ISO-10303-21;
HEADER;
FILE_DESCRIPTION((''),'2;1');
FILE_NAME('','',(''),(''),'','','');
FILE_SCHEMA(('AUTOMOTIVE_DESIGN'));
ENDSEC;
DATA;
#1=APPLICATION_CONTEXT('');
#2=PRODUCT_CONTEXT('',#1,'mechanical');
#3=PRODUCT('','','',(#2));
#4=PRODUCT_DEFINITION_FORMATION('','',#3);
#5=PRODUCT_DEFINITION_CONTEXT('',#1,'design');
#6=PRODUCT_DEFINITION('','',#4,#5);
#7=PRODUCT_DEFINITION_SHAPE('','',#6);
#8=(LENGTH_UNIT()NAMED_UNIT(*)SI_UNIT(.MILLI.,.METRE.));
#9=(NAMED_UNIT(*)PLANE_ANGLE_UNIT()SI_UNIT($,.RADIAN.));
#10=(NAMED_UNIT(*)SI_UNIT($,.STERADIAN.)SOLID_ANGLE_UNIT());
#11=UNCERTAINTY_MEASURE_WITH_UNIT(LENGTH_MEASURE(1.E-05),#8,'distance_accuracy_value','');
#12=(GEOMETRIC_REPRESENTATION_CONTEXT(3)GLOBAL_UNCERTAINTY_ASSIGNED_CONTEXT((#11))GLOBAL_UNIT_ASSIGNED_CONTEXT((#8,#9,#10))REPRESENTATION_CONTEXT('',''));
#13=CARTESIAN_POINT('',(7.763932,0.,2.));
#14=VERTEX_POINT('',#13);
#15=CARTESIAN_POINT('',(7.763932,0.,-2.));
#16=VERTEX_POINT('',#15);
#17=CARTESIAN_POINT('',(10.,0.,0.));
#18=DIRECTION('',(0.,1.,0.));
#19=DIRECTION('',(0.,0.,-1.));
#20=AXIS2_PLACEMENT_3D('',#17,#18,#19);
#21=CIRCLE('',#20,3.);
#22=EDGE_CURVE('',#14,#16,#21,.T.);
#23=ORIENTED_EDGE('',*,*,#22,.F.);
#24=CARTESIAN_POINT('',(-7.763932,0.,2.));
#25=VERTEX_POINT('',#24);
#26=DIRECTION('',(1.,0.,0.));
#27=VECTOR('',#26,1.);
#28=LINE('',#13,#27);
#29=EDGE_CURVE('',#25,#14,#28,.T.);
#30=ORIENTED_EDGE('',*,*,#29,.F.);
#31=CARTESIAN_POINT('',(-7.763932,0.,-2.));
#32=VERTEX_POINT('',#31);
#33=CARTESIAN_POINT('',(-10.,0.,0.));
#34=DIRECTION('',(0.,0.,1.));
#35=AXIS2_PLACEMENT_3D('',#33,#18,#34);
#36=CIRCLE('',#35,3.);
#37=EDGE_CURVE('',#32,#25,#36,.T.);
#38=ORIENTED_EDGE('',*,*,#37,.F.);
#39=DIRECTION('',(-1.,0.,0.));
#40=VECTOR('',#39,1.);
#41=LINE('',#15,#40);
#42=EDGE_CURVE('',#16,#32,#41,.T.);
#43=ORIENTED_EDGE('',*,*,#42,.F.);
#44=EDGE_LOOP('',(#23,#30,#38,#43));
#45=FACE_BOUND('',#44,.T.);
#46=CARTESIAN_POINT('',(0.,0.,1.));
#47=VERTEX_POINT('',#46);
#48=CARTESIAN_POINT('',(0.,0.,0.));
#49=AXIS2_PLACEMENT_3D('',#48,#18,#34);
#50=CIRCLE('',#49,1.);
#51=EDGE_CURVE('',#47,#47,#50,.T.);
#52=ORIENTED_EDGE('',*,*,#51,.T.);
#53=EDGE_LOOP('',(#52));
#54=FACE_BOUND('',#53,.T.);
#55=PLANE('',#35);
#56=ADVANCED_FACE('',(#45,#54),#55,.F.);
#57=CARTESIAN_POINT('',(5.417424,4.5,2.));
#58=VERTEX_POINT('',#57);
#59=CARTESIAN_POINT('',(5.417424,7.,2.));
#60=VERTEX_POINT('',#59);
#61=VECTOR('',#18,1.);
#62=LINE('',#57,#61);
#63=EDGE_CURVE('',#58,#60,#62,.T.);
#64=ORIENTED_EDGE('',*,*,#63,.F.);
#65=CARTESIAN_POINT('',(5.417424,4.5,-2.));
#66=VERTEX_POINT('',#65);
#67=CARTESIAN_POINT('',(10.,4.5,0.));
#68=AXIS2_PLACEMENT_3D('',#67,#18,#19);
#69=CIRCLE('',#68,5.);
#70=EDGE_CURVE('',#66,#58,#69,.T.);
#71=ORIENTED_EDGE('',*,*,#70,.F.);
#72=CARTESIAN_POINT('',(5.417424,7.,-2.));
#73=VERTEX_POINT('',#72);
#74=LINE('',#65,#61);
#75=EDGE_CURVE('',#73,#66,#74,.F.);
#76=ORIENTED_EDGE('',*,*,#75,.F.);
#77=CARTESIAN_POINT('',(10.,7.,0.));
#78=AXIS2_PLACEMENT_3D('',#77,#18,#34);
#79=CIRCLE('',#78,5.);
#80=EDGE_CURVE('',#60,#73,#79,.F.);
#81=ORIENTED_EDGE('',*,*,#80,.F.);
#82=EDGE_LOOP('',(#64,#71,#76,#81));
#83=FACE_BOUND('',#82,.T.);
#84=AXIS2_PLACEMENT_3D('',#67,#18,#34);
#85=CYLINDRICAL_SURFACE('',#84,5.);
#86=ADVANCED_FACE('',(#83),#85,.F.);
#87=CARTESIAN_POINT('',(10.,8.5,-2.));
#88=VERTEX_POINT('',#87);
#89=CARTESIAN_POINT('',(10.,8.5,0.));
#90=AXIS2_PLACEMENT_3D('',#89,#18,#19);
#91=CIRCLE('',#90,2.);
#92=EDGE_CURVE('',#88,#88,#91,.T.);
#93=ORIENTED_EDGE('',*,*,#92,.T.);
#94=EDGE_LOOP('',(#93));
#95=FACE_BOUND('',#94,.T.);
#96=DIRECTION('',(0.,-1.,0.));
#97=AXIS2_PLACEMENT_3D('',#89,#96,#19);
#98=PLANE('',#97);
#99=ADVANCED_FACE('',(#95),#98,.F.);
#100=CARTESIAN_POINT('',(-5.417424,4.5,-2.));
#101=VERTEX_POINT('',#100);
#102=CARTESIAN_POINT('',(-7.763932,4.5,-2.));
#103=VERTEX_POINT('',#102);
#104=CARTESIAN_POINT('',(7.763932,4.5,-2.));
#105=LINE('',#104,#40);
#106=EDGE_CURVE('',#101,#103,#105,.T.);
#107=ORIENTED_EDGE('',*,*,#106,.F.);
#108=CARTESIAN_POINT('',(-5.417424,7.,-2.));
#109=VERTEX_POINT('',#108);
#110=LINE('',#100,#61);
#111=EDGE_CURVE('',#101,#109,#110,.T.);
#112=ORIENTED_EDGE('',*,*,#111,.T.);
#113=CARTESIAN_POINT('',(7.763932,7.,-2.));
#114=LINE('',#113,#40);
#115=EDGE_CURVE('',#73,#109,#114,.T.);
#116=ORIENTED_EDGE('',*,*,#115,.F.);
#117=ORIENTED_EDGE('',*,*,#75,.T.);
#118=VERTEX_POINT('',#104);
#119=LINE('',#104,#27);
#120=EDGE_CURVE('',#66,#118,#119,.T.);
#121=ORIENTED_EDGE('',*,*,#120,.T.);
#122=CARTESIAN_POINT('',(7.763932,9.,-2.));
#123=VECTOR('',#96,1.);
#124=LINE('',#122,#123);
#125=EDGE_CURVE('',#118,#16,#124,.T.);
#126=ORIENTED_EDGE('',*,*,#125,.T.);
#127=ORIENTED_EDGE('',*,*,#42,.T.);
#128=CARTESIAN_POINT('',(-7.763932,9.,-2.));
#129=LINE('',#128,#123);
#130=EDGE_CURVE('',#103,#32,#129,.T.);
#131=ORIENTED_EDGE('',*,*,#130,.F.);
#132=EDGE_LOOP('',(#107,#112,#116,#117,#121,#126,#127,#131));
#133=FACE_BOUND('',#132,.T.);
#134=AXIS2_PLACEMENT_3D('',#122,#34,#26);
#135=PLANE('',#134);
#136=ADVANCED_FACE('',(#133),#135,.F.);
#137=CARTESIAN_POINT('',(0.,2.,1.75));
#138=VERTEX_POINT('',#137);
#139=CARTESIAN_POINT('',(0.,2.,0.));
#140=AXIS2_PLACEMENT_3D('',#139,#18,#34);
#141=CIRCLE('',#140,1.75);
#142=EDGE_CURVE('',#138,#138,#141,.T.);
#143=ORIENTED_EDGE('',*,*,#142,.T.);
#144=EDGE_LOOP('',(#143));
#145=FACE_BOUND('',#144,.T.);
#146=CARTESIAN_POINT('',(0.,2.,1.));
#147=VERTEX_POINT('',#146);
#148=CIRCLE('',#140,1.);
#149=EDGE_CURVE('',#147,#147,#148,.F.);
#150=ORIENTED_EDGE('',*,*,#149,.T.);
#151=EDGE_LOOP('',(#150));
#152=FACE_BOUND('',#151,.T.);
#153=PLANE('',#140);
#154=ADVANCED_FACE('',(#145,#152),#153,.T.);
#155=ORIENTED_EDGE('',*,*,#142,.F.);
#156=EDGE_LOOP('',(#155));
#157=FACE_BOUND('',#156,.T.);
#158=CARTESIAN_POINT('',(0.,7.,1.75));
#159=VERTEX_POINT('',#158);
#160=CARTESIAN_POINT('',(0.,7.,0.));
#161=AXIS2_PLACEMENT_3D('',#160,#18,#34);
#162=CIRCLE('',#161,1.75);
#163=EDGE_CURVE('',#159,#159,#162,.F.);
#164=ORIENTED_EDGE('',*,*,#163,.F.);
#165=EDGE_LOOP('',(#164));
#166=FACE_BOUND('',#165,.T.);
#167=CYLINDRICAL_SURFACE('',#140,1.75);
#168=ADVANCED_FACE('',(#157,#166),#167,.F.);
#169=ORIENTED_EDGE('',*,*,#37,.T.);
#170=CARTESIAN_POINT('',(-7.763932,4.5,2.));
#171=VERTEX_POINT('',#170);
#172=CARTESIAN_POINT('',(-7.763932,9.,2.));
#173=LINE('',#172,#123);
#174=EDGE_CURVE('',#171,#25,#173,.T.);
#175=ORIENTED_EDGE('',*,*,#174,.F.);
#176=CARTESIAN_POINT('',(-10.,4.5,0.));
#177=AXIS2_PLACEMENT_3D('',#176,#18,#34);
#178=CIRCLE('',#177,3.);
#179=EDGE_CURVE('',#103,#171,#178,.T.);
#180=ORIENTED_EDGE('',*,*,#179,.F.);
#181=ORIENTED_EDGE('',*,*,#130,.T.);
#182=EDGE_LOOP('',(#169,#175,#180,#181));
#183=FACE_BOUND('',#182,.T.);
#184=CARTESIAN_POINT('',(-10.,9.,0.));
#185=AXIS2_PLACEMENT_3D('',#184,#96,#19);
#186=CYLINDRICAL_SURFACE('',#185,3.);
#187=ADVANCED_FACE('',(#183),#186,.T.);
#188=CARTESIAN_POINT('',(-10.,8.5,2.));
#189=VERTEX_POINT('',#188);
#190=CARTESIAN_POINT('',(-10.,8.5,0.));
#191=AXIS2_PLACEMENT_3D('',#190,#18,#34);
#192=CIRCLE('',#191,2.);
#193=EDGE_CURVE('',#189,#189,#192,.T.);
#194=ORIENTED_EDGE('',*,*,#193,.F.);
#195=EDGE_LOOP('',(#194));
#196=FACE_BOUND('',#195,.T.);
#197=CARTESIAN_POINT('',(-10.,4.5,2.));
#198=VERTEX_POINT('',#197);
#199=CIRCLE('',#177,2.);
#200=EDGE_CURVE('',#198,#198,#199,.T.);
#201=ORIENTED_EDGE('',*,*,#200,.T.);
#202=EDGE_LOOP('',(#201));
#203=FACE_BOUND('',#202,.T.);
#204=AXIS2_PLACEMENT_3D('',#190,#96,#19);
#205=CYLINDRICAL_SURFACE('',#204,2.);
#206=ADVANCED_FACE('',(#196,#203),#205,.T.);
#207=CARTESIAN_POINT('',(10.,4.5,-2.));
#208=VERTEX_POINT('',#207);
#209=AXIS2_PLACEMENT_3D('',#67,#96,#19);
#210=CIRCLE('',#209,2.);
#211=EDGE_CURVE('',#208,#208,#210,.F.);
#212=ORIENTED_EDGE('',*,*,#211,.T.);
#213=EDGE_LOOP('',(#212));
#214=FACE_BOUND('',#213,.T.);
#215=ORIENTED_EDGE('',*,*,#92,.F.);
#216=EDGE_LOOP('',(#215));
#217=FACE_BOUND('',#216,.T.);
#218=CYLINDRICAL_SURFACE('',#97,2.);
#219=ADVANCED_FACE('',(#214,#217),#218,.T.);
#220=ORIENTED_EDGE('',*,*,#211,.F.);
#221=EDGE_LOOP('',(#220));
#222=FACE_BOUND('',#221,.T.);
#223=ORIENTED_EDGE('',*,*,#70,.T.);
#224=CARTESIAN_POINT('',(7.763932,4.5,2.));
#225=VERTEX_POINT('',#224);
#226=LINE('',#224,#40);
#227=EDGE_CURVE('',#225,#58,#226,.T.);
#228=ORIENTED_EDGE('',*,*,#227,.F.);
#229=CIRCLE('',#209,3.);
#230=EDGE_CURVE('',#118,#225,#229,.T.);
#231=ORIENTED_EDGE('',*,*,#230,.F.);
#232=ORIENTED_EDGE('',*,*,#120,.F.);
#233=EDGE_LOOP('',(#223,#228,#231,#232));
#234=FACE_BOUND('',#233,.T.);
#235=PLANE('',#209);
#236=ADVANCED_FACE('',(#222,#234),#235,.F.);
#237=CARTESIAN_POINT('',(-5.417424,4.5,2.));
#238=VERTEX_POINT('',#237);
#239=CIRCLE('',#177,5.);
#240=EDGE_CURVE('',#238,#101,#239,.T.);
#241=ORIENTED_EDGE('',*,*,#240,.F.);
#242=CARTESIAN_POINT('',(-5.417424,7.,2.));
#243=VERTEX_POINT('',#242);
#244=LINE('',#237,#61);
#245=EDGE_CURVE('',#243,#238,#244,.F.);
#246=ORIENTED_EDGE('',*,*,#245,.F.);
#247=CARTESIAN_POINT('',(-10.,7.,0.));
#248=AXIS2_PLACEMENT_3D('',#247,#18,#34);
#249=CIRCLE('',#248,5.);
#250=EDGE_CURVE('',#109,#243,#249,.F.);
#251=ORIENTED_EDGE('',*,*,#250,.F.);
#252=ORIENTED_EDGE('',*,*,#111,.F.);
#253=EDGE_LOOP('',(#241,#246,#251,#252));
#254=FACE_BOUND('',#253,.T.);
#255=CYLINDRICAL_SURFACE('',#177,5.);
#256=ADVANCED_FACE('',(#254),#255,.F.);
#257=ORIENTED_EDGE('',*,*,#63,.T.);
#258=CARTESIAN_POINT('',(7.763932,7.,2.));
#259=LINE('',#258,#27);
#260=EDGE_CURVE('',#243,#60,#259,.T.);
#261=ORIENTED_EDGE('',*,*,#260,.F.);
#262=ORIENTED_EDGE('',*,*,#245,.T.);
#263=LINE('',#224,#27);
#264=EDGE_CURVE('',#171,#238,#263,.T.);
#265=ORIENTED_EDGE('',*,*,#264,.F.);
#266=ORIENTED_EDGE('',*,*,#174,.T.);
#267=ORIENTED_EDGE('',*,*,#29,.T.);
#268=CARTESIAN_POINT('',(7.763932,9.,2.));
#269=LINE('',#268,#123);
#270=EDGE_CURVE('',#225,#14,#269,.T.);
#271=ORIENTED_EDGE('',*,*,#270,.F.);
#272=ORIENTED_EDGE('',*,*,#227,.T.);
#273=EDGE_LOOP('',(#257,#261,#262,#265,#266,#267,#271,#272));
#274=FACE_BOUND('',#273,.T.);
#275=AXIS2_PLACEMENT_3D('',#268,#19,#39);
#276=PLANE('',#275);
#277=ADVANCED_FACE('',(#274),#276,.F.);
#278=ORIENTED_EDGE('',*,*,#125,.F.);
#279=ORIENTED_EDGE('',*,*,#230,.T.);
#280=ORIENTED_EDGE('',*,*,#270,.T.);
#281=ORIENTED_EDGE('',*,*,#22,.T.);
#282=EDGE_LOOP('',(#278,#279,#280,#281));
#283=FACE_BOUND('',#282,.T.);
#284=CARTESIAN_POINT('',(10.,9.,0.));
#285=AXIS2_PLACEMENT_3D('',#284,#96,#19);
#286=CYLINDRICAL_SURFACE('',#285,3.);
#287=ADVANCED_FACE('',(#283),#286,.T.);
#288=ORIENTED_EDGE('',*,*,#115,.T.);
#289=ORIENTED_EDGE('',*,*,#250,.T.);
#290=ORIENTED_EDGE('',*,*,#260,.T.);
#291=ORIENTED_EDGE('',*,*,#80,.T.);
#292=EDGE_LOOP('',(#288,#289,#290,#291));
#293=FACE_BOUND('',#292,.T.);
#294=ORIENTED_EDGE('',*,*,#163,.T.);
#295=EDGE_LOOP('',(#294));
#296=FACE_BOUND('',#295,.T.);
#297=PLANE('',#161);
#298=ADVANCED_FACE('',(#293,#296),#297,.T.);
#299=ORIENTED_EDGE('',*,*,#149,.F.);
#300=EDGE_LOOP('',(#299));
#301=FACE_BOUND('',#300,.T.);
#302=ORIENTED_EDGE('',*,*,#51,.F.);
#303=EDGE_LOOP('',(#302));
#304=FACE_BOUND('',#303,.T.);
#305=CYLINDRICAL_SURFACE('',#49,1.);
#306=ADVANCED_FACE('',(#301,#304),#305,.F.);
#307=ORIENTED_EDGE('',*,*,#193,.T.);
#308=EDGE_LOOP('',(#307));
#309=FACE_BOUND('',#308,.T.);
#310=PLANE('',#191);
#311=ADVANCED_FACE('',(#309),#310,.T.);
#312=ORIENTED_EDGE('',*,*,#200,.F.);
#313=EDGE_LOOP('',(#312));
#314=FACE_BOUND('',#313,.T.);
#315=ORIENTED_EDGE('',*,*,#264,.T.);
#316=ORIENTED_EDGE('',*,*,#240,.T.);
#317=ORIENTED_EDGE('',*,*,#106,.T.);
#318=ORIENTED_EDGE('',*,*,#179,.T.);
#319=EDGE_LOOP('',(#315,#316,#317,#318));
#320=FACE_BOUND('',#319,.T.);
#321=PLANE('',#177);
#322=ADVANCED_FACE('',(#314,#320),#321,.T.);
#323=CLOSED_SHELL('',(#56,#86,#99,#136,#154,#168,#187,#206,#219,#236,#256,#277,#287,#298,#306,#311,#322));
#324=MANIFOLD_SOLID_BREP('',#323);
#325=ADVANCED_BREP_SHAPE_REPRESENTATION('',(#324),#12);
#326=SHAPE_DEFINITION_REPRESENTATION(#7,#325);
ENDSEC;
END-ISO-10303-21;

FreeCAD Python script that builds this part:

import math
import FreeCAD as App
import Part
import Sketcher

V = App.Vector
Q = App.Units.Quantity

doc = App.newDocument("Part")
body = doc.addObject("PartDesign::Body", "Body")

sketch1 = body.newObject("Sketcher::SketchObject", "Sketch")
sketch1.AttachmentSupport = (doc.getObject("XZ_Plane"), [""])
sketch1.MapMode = "FlatFace"
sketch1.addGeometry([
    Part.LineSegment(V(-7.763932, 2, 0), V(7.763932, 2, 0)),
    Part.ArcOfCircle(Part.Circle(V(10, 0, 0), V(0, 0, 1), 3), math.radians(-138.189685), math.radians(138.189685)),
    Part.LineSegment(V(7.763932, -2, 0), V(-7.763932, -2, 0)),
    Part.ArcOfCircle(Part.Circle(V(-10, 0, 0), V(0, 0, 1), 3), math.radians(41.810315), math.radians(318.189685)),
], False)
sketch1.addConstraint([
    Sketcher.Constraint("Coincident", 0, 2, 1, 2),
    Sketcher.Constraint("Coincident", 1, 1, 2, 1),
    Sketcher.Constraint("Coincident", 2, 2, 3, 2),
    Sketcher.Constraint("Coincident", 3, 1, 0, 1),
    Sketcher.Constraint("Horizontal", 0),
    Sketcher.Constraint("Horizontal", 2),
    Sketcher.Constraint("Equal", 1, 3),
    Sketcher.Constraint("Symmetric", 1, 3, 3, 3, -1, 1),
    Sketcher.Constraint("Symmetric", 0, 2, 1, 1, -1),
    Sketcher.Constraint("Radius", 1, Q("3 mm")),
    Sketcher.Constraint("DistanceX", -1, 1, 1, 3, Q("10 mm")),
    Sketcher.Constraint("DistanceY", -1, 1, 0, 2, Q("2 mm")),
])
pad1 = body.newObject("PartDesign::Pad", "Pad")
pad1.Profile = sketch1
pad1.Length = 9
pad1.Reversed = True

sketch2 = body.newObject("Sketcher::SketchObject", "Sketch001")
sketch2.AttachmentSupport = (doc.getObject("XZ_Plane"), [""])
sketch2.MapMode = "FlatFace"
sketch2.AttachmentOffset = App.Placement(V(0, 0, -9), App.Rotation())
sketch2.addGeometry([
    Part.Circle(V(-10, 0, 0), V(0, 0, 1), 5),
    Part.Circle(V(10, 0, 0), V(0, 0, 1), 5),
], False)
sketch2.addConstraint([
    Sketcher.Constraint("Equal", 0, 1),
    Sketcher.Constraint("Symmetric", 0, 3, 1, 3, -1, 1),
    Sketcher.Constraint("PointOnObject", 0, 3, -1),
    Sketcher.Constraint("Diameter", 0, Q("10 mm")),
    Sketcher.Constraint("DistanceX", 0, 3, -1, 1, Q("10 mm")),
])
pocket1 = body.newObject("PartDesign::Pocket", "Pocket")
pocket1.Profile = sketch2
pocket1.Length = 4.5
pocket1.Reversed = True

sketch3 = body.newObject("Sketcher::SketchObject", "Sketch002")
sketch3.AttachmentSupport = (doc.getObject("XZ_Plane"), [""])
sketch3.MapMode = "FlatFace"
sketch3.AttachmentOffset = App.Placement(V(0, 0, -4.5), App.Rotation())
sketch3.addGeometry([
    Part.Circle(V(-10, 0, 0), V(0, 0, 1), 2),
    Part.Circle(V(10, 0, 0), V(0, 0, 1), 2),
], False)
sketch3.addConstraint([
    Sketcher.Constraint("Equal", 0, 1),
    Sketcher.Constraint("Symmetric", 0, 3, 1, 3, -1, 1),
    Sketcher.Constraint("PointOnObject", 0, 3, -1),
    Sketcher.Constraint("Diameter", 0, Q("4 mm")),
    Sketcher.Constraint("DistanceX", 0, 3, -1, 1, Q("10 mm")),
])
pad2 = body.newObject("PartDesign::Pad", "Pad001")
pad2.Profile = sketch3
pad2.Length = 4
pad2.Reversed = True

sketch4 = body.newObject("Sketcher::SketchObject", "Sketch003")
sketch4.AttachmentSupport = (doc.getObject("XZ_Plane"), [""])
sketch4.MapMode = "FlatFace"
sketch4.AttachmentOffset = App.Placement(V(0, 0, -9), App.Rotation())
sketch4.addGeometry(Part.Circle(V(0, 0, 0), V(0, 0, 1), 1), False)
sketch4.addConstraint([
    Sketcher.Constraint("Coincident", 0, 3, -1, 1),
    Sketcher.Constraint("Diameter", 0, Q("2 mm")),
])
pocket2 = body.newObject("PartDesign::Pocket", "Pocket001")
pocket2.Profile = sketch4
pocket2.Type = "ThroughAll"
pocket2.Reversed = True

sketch5 = body.newObject("Sketcher::SketchObject", "Sketch004")
sketch5.AttachmentSupport = (doc.getObject("XZ_Plane"), [""])
sketch5.MapMode = "FlatFace"
sketch5.AttachmentOffset = App.Placement(V(0, 0, -9), App.Rotation())
sketch5.addGeometry(Part.Circle(V(0, 0, 0), V(0, 0, 1), 1.75), False)
sketch5.addConstraint([
    Sketcher.Constraint("Coincident", 0, 3, -1, 1),
    Sketcher.Constraint("Diameter", 0, Q("3.5 mm")),
])
pocket3 = body.newObject("PartDesign::Pocket", "Pocket002")
pocket3.Profile = sketch5
pocket3.Length = 7
pocket3.Reversed = True

sketch6 = body.newObject("Sketcher::SketchObject", "Sketch005")
sketch6.AttachmentSupport = (doc.getObject("XZ_Plane"), [""])
sketch6.MapMode = "FlatFace"
sketch6.AttachmentOffset = App.Placement(V(0, 0, -9), App.Rotation())
sketch6.addGeometry([
    Part.LineSegment(V(-6.393928, -3.226829, 0), V(-6.393928, 3.226829, 0)),
    Part.LineSegment(V(-6.393928, 3.226829, 0), V(6.393928, 3.226829, 0)),
    Part.LineSegment(V(6.393928, 3.226829, 0), V(6.393928, -3.226829, 0)),
    Part.LineSegment(V(6.393928, -3.226829, 0), V(-6.393928, -3.226829, 0)),
], False)
sketch6.addConstraint([
    Sketcher.Constraint("Coincident", 0, 2, 1, 1),
    Sketcher.Constraint("Coincident", 1, 2, 2, 1),
    Sketcher.Constraint("Coincident", 2, 2, 3, 1),
    Sketcher.Constraint("Coincident", 3, 2, 0, 1),
    Sketcher.Constraint("Vertical", 0),
    Sketcher.Constraint("Horizontal", 1),
    Sketcher.Constraint("Vertical", 2),
    Sketcher.Constraint("Horizontal", 3),
    Sketcher.Constraint("Symmetric", 0, 2, 2, 2, -1, 1),
    Sketcher.Constraint("DistanceY", 0, 1, 0, 2, Q("6.453658 mm")),
    Sketcher.Constraint("DistanceX", 1, 1, 1, 2, Q("12.787857 mm")),
])
pocket4 = body.newObject("PartDesign::Pocket", "Pocket003")
pocket4.Profile = sketch6
pocket4.Length = 2
pocket4.Reversed = True

doc.recompute()
